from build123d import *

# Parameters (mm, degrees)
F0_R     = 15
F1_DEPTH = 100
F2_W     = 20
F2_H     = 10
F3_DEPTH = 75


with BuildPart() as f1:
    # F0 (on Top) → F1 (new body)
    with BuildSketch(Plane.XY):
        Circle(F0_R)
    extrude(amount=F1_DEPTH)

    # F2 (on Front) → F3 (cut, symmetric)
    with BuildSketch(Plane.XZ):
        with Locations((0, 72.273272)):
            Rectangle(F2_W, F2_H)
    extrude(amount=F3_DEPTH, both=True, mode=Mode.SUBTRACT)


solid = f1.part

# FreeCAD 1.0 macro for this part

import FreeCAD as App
import Part
import Sketcher

V = App.Vector


def add_polygon(sketch, points):
    """Adds a closed chain of lines whose ends are joined by coincident constraints."""
    first, n = sketch.GeometryCount, len(points)
    for a, b in zip(points, points[1:] + points[:1]):
        sketch.addGeometry(Part.LineSegment(App.Vector(*a, 0), App.Vector(*b, 0)), False)
    for i in range(n):
        sketch.addConstraint(Sketcher.Constraint("Coincident", first + i, 2, first + (i + 1) % n, 1))

doc = App.newDocument("Part")
params = doc.addObject("Spreadsheet::Sheet", "Params")
for row, (alias, value) in enumerate([
    ("sketch1_diameter", "30 mm"),
    ("pad1_length", "100 mm"),
    ("sketch2_width", "20 mm"),
    ("sketch2_height", "10 mm"),
    ("pocket1_length", "150 mm"),
], start=1):
    params.set(f"A{row}", alias)
    params.set(f"B{row}", "=" + value)
    params.setAlias(f"B{row}", alias)

body = doc.addObject("PartDesign::Body", "Body")

sketch1 = doc.addObject("Sketcher::SketchObject", "Sketch")
body.addObject(sketch1)
sketch1.AttachmentSupport = (doc.XY_Plane, [""])
sketch1.MapMode = "FlatFace"
sketch1.addGeometry(Part.Circle(V(0, 0, 0), V(0, 0, 1), 15), False)
sketch1.addConstraint([
    Sketcher.Constraint("Coincident", 0, 3, -1, 1),
    Sketcher.Constraint("Diameter", 0, 30.0),
])
sketch1.setExpression("Constraints[1]", "Params.sketch1_diameter")
pad1 = doc.addObject("PartDesign::Pad", "Pad")
body.addObject(pad1)
pad1.Profile = sketch1
pad1.setExpression("Length", "Params.pad1_length")

sketch2 = doc.addObject("Sketcher::SketchObject", "Sketch001")
body.addObject(sketch2)
sketch2.AttachmentSupport = (doc.XZ_Plane, [""])
sketch2.MapMode = "FlatFace"
add_polygon(sketch2, [(-10, 77.273272), (-10, 67.273272), (10, 67.273272), (10, 77.273272)])
sketch2.addConstraint([
    Sketcher.Constraint("Vertical", 0),
    Sketcher.Constraint("Horizontal", 1),
    Sketcher.Constraint("Vertical", 2),
    Sketcher.Constraint("Horizontal", 3),
    Sketcher.Constraint("DistanceX", 1, 1, 1, 2, 20.0),
    Sketcher.Constraint("DistanceY", 0, 2, 0, 1, 10.0),
    Sketcher.Constraint("DistanceX", 0, 2, -1, 1, 10.0),
    Sketcher.Constraint("DistanceY", -1, 1, 0, 2, 67.273272),
])
sketch2.setExpression("Constraints[8]", "Params.sketch2_width")
sketch2.setExpression("Constraints[9]", "Params.sketch2_height")
pocket1 = doc.addObject("PartDesign::Pocket", "Pocket")
body.addObject(pocket1)
pocket1.Profile = sketch2
pocket1.setExpression("Length", "Params.pocket1_length")
pocket1.Midplane = True

doc.recompute()
